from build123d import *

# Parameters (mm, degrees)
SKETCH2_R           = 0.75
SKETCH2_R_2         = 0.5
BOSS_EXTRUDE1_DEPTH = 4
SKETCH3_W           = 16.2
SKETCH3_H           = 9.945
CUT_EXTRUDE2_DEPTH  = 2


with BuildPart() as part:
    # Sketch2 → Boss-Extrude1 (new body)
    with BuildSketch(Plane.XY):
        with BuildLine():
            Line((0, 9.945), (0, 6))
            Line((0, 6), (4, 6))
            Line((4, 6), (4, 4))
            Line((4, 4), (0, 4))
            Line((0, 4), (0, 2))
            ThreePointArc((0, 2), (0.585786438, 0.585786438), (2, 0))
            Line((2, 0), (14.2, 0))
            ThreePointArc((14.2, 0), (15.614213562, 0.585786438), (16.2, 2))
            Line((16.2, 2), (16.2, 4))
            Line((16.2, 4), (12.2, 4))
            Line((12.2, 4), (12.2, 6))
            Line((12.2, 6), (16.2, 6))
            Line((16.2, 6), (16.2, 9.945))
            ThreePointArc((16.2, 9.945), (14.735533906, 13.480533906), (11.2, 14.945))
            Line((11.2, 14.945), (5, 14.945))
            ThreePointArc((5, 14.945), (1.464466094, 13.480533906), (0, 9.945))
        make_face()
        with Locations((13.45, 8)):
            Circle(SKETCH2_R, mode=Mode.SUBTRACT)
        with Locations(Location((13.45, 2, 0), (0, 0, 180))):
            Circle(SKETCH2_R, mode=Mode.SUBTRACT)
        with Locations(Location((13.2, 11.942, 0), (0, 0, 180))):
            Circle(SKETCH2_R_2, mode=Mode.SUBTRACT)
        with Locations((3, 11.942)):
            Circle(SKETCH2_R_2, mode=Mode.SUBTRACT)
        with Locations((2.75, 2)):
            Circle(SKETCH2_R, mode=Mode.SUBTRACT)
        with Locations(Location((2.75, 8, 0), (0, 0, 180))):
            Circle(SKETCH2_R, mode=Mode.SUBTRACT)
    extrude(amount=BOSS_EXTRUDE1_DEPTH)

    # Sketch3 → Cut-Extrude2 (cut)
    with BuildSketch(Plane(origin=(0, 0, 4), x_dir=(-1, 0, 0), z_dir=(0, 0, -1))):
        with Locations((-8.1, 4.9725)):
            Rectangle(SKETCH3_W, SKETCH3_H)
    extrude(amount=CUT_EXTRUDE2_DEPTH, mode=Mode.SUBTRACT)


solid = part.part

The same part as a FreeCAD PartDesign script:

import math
import FreeCAD as App
import Part
import Sketcher


def add_polygon(sketch, points):
    """Adds a closed chain of lines whose ends are joined by coincident constraints."""
    first, n = sketch.GeometryCount, len(points)
    for a, b in zip(points, points[1:] + points[:1]):
        sketch.addGeometry(Part.LineSegment(App.Vector(*a, 0), App.Vector(*b, 0)), False)
    for i in range(n):
        sketch.addConstraint(Sketcher.Constraint("Coincident", first + i, 2, first + (i + 1) % n, 1))

doc = App.newDocument("Part")
body = doc.addObject("PartDesign::Body", "Body")

sketch1 = doc.addObject("Sketcher::SketchObject", "Sketch")
body.addObject(sketch1)
sketch1.AttachmentSupport = (doc.XY_Plane, [""])
sketch1.MapMode = "FlatFace"
sketch1.addGeometry([
    Part.LineSegment(App.Vector(0, 9.9, 0), App.Vector(0, 6, 0)),
    Part.LineSegment(App.Vector(0, 6, 0), App.Vector(4, 6, 0)),
    Part.LineSegment(App.Vector(4, 6, 0), App.Vector(4, 4, 0)),
    Part.LineSegment(App.Vector(4, 4, 0), App.Vector(0, 4, 0)),
    Part.LineSegment(App.Vector(0, 4, 0), App.Vector(0, 2, 0)),
    Part.ArcOfCircle(Part.Circle(App.Vector(2, 2, 0), App.Vector(0, 0, 1), 2), math.radians(-180), math.radians(-90)),
    Part.LineSegment(App.Vector(2, 0, 0), App.Vector(14.2, 0, 0)),
    Part.ArcOfCircle(Part.Circle(App.Vector(14.2, 2, 0), App.Vector(0, 0, 1), 2), math.radians(-90), math.radians(0)),
    Part.LineSegment(App.Vector(16.2, 2, 0), App.Vector(16.2, 4, 0)),
    Part.LineSegment(App.Vector(16.2, 4, 0), App.Vector(12.2, 4, 0)),
    Part.LineSegment(App.Vector(12.2, 4, 0), App.Vector(12.2, 6, 0)),
    Part.LineSegment(App.Vector(12.2, 6, 0), App.Vector(16.2, 6, 0)),
    Part.LineSegment(App.Vector(16.2, 6, 0), App.Vector(16.2, 9.9, 0)),
    Part.ArcOfCircle(Part.Circle(App.Vector(11.2, 9.9, 0), App.Vector(0, 0, 1), 5), math.radians(0), math.radians(90)),
    Part.LineSegment(App.Vector(11.2, 14.9, 0), App.Vector(5, 14.9, 0)),
    Part.ArcOfCircle(Part.Circle(App.Vector(5, 9.9, 0), App.Vector(0, 0, 1), 5), math.radians(90), math.radians(180)),
    Part.Circle(App.Vector(2.8, 2, 0), App.Vector(0, 0, 1), 0.8),
    Part.Circle(App.Vector(13.4, 2, 0), App.Vector(0, 0, 1), 0.8),
    Part.Circle(App.Vector(2.8, 8, 0), App.Vector(0, 0, 1), 0.8),
    Part.Circle(App.Vector(3, 11.9, 0), App.Vector(0, 0, 1), 0.5),
    Part.Circle(App.Vector(13.4, 8, 0), App.Vector(0, 0, 1), 0.8),
    Part.Circle(App.Vector(13.2, 11.9, 0), App.Vector(0, 0, 1), 0.5),
], False)
sketch1.addConstraint([
    Sketcher.Constraint("Coincident", 0, 2, 1, 1),
    Sketcher.Constraint("Coincident", 1, 2, 2, 1),
    Sketcher.Constraint("Coincident", 2, 2, 3, 1),
    Sketcher.Constraint("Coincident", 3, 2, 4, 1),
    Sketcher.Constraint("Tangent", 4, 2, 5, 1),
    Sketcher.Constraint("Tangent", 5, 2, 6, 1),
    Sketcher.Constraint("Tangent", 6, 2, 7, 1),
    Sketcher.Constraint("Tangent", 7, 2, 8, 1),
    Sketcher.Constraint("Coincident", 8, 2, 9, 1),
    Sketcher.Constraint("Coincident", 9, 2, 10, 1),
    Sketcher.Constraint("Coincident", 10, 2, 11, 1),
    Sketcher.Constraint("Coincident", 11, 2, 12, 1),
    Sketcher.Constraint("Tangent", 12, 2, 13, 1),
    Sketcher.Constraint("Tangent", 13, 2, 14, 1),
    Sketcher.Constraint("Tangent", 14, 2, 15, 1),
    Sketcher.Constraint("Tangent", 15, 2, 0, 1),
    Sketcher.Constraint("Vertical", 0),
    Sketcher.Constraint("Horizontal", 1),
    Sketcher.Constraint("Vertical", 2),
    Sketcher.Constraint("Horizontal", 3),
    Sketcher.Constraint("Vertical", 4),
    Sketcher.Constraint("Horizontal", 6),
    Sketcher.Constraint("Vertical", 8),
    Sketcher.Constraint("Horizontal", 9),
    Sketcher.Constraint("Vertical", 10),
    Sketcher.Constraint("Horizontal", 11),
    Sketcher.Constraint("Vertical", 12),
    Sketcher.Constraint("Horizontal", 14),
    Sketcher.Constraint("Equal", 5, 7),
    Sketcher.Constraint("Equal", 13, 15),
    Sketcher.Constraint("Equal", 16, 17),
    Sketcher.Constraint("Equal", 17, 18),
    Sketcher.Constraint("Equal", 18, 20),
    Sketcher.Constraint("Equal", 19, 21),
    Sketcher.Constraint("PointOnObject", 0, 2, -2),
    Sketcher.Constraint("PointOnObject", 3, 2, -2),
    Sketcher.Constraint("PointOnObject", 5, 2, -1),
    Sketcher.Constraint("Horizontal", 7, 3, 16, 3),
    Sketcher.Constraint("Horizontal", 16, 3, 17, 3),
    Sketcher.Constraint("Horizontal", 18, 3, 20, 3),
    Sketcher.Constraint("Horizontal", 19, 3, 21, 3),
    Sketcher.Constraint("Horizontal", 3, 2, 8, 2),
    Sketcher.Constraint("Horizontal", 1, 2, 10, 2),
    Sketcher.Constraint("Vertical", 16, 3, 18, 3),
    Sketcher.Constraint("Vertical", 17, 3, 20, 3),
    Sketcher.Constraint("Vertical", 8, 2, 11, 2),
    Sketcher.Constraint("Equal", 3, 9),
    Sketcher.Constraint("Equal", 2, 4),
    Sketcher.Constraint("Diameter", 19, 1.0),
    Sketcher.Constraint("Radius", 5, 2.0),
    Sketcher.Constraint("Radius", 13, 5.0),
    Sketcher.Constraint("Diameter", 16, 1.5),
    Sketcher.Constraint("DistanceX", 1, 1, 1, 2, 4.0),
    Sketcher.Constraint("DistanceY", 2, 2, 2, 1, 2.0),
    Sketcher.Constraint("DistanceX", 6, 1, 6, 2, 12.2),
    Sketcher.Constraint("DistanceY", -1, 1, 18, 3, 8.0),
    Sketcher.Constraint("DistanceX", -1, 1, 19, 3, 3.0),
    Sketcher.Constraint("DistanceX", 13, 3, 21, 3, 2.0),
    Sketcher.Constraint("DistanceX", 16, 3, 17, 3, 10.7),
    Sketcher.Constraint("DistanceY", 0, 2, 0, 1, 3.945),
    Sketcher.Constraint("DistanceX", -1, 1, 16, 3, 2.75),
    Sketcher.Constraint("DistanceY", -1, 1, 19, 3, 11.942),
])
pad1 = doc.addObject("PartDesign::Pad", "Pad")
body.addObject(pad1)
pad1.Profile = sketch1
pad1.Length = 4

sketch2 = doc.addObject("Sketcher::SketchObject", "Sketch001")
body.addObject(sketch2)
sketch2.AttachmentSupport = (doc.XY_Plane, [""])
sketch2.MapMode = "FlatFace"
sketch2.AttachmentOffset = App.Placement(App.Vector(0, 0, 4), App.Rotation())
add_polygon(sketch2, [(16, 10), (16, 0), (0, 0), (0, 10)])
sketch2.addConstraint([
    Sketcher.Constraint("Vertical", 0),
    Sketcher.Constraint("Horizontal", 1),
    Sketcher.Constraint("Vertical", 2),
    Sketcher.Constraint("Horizontal", 3),
    Sketcher.Constraint("Coincident", 1, 2, -1, 1),
    Sketcher.Constraint("DistanceX", 1, 2, 1, 1, 16.2),
    Sketcher.Constraint("DistanceY", 0, 2, 0, 1, 9.945),
])
pocket1 = doc.addObject("PartDesign::Pocket", "Pocket")
body.addObject(pocket1)
pocket1.Profile = sketch2
pocket1.Length = 2

doc.recompute()
